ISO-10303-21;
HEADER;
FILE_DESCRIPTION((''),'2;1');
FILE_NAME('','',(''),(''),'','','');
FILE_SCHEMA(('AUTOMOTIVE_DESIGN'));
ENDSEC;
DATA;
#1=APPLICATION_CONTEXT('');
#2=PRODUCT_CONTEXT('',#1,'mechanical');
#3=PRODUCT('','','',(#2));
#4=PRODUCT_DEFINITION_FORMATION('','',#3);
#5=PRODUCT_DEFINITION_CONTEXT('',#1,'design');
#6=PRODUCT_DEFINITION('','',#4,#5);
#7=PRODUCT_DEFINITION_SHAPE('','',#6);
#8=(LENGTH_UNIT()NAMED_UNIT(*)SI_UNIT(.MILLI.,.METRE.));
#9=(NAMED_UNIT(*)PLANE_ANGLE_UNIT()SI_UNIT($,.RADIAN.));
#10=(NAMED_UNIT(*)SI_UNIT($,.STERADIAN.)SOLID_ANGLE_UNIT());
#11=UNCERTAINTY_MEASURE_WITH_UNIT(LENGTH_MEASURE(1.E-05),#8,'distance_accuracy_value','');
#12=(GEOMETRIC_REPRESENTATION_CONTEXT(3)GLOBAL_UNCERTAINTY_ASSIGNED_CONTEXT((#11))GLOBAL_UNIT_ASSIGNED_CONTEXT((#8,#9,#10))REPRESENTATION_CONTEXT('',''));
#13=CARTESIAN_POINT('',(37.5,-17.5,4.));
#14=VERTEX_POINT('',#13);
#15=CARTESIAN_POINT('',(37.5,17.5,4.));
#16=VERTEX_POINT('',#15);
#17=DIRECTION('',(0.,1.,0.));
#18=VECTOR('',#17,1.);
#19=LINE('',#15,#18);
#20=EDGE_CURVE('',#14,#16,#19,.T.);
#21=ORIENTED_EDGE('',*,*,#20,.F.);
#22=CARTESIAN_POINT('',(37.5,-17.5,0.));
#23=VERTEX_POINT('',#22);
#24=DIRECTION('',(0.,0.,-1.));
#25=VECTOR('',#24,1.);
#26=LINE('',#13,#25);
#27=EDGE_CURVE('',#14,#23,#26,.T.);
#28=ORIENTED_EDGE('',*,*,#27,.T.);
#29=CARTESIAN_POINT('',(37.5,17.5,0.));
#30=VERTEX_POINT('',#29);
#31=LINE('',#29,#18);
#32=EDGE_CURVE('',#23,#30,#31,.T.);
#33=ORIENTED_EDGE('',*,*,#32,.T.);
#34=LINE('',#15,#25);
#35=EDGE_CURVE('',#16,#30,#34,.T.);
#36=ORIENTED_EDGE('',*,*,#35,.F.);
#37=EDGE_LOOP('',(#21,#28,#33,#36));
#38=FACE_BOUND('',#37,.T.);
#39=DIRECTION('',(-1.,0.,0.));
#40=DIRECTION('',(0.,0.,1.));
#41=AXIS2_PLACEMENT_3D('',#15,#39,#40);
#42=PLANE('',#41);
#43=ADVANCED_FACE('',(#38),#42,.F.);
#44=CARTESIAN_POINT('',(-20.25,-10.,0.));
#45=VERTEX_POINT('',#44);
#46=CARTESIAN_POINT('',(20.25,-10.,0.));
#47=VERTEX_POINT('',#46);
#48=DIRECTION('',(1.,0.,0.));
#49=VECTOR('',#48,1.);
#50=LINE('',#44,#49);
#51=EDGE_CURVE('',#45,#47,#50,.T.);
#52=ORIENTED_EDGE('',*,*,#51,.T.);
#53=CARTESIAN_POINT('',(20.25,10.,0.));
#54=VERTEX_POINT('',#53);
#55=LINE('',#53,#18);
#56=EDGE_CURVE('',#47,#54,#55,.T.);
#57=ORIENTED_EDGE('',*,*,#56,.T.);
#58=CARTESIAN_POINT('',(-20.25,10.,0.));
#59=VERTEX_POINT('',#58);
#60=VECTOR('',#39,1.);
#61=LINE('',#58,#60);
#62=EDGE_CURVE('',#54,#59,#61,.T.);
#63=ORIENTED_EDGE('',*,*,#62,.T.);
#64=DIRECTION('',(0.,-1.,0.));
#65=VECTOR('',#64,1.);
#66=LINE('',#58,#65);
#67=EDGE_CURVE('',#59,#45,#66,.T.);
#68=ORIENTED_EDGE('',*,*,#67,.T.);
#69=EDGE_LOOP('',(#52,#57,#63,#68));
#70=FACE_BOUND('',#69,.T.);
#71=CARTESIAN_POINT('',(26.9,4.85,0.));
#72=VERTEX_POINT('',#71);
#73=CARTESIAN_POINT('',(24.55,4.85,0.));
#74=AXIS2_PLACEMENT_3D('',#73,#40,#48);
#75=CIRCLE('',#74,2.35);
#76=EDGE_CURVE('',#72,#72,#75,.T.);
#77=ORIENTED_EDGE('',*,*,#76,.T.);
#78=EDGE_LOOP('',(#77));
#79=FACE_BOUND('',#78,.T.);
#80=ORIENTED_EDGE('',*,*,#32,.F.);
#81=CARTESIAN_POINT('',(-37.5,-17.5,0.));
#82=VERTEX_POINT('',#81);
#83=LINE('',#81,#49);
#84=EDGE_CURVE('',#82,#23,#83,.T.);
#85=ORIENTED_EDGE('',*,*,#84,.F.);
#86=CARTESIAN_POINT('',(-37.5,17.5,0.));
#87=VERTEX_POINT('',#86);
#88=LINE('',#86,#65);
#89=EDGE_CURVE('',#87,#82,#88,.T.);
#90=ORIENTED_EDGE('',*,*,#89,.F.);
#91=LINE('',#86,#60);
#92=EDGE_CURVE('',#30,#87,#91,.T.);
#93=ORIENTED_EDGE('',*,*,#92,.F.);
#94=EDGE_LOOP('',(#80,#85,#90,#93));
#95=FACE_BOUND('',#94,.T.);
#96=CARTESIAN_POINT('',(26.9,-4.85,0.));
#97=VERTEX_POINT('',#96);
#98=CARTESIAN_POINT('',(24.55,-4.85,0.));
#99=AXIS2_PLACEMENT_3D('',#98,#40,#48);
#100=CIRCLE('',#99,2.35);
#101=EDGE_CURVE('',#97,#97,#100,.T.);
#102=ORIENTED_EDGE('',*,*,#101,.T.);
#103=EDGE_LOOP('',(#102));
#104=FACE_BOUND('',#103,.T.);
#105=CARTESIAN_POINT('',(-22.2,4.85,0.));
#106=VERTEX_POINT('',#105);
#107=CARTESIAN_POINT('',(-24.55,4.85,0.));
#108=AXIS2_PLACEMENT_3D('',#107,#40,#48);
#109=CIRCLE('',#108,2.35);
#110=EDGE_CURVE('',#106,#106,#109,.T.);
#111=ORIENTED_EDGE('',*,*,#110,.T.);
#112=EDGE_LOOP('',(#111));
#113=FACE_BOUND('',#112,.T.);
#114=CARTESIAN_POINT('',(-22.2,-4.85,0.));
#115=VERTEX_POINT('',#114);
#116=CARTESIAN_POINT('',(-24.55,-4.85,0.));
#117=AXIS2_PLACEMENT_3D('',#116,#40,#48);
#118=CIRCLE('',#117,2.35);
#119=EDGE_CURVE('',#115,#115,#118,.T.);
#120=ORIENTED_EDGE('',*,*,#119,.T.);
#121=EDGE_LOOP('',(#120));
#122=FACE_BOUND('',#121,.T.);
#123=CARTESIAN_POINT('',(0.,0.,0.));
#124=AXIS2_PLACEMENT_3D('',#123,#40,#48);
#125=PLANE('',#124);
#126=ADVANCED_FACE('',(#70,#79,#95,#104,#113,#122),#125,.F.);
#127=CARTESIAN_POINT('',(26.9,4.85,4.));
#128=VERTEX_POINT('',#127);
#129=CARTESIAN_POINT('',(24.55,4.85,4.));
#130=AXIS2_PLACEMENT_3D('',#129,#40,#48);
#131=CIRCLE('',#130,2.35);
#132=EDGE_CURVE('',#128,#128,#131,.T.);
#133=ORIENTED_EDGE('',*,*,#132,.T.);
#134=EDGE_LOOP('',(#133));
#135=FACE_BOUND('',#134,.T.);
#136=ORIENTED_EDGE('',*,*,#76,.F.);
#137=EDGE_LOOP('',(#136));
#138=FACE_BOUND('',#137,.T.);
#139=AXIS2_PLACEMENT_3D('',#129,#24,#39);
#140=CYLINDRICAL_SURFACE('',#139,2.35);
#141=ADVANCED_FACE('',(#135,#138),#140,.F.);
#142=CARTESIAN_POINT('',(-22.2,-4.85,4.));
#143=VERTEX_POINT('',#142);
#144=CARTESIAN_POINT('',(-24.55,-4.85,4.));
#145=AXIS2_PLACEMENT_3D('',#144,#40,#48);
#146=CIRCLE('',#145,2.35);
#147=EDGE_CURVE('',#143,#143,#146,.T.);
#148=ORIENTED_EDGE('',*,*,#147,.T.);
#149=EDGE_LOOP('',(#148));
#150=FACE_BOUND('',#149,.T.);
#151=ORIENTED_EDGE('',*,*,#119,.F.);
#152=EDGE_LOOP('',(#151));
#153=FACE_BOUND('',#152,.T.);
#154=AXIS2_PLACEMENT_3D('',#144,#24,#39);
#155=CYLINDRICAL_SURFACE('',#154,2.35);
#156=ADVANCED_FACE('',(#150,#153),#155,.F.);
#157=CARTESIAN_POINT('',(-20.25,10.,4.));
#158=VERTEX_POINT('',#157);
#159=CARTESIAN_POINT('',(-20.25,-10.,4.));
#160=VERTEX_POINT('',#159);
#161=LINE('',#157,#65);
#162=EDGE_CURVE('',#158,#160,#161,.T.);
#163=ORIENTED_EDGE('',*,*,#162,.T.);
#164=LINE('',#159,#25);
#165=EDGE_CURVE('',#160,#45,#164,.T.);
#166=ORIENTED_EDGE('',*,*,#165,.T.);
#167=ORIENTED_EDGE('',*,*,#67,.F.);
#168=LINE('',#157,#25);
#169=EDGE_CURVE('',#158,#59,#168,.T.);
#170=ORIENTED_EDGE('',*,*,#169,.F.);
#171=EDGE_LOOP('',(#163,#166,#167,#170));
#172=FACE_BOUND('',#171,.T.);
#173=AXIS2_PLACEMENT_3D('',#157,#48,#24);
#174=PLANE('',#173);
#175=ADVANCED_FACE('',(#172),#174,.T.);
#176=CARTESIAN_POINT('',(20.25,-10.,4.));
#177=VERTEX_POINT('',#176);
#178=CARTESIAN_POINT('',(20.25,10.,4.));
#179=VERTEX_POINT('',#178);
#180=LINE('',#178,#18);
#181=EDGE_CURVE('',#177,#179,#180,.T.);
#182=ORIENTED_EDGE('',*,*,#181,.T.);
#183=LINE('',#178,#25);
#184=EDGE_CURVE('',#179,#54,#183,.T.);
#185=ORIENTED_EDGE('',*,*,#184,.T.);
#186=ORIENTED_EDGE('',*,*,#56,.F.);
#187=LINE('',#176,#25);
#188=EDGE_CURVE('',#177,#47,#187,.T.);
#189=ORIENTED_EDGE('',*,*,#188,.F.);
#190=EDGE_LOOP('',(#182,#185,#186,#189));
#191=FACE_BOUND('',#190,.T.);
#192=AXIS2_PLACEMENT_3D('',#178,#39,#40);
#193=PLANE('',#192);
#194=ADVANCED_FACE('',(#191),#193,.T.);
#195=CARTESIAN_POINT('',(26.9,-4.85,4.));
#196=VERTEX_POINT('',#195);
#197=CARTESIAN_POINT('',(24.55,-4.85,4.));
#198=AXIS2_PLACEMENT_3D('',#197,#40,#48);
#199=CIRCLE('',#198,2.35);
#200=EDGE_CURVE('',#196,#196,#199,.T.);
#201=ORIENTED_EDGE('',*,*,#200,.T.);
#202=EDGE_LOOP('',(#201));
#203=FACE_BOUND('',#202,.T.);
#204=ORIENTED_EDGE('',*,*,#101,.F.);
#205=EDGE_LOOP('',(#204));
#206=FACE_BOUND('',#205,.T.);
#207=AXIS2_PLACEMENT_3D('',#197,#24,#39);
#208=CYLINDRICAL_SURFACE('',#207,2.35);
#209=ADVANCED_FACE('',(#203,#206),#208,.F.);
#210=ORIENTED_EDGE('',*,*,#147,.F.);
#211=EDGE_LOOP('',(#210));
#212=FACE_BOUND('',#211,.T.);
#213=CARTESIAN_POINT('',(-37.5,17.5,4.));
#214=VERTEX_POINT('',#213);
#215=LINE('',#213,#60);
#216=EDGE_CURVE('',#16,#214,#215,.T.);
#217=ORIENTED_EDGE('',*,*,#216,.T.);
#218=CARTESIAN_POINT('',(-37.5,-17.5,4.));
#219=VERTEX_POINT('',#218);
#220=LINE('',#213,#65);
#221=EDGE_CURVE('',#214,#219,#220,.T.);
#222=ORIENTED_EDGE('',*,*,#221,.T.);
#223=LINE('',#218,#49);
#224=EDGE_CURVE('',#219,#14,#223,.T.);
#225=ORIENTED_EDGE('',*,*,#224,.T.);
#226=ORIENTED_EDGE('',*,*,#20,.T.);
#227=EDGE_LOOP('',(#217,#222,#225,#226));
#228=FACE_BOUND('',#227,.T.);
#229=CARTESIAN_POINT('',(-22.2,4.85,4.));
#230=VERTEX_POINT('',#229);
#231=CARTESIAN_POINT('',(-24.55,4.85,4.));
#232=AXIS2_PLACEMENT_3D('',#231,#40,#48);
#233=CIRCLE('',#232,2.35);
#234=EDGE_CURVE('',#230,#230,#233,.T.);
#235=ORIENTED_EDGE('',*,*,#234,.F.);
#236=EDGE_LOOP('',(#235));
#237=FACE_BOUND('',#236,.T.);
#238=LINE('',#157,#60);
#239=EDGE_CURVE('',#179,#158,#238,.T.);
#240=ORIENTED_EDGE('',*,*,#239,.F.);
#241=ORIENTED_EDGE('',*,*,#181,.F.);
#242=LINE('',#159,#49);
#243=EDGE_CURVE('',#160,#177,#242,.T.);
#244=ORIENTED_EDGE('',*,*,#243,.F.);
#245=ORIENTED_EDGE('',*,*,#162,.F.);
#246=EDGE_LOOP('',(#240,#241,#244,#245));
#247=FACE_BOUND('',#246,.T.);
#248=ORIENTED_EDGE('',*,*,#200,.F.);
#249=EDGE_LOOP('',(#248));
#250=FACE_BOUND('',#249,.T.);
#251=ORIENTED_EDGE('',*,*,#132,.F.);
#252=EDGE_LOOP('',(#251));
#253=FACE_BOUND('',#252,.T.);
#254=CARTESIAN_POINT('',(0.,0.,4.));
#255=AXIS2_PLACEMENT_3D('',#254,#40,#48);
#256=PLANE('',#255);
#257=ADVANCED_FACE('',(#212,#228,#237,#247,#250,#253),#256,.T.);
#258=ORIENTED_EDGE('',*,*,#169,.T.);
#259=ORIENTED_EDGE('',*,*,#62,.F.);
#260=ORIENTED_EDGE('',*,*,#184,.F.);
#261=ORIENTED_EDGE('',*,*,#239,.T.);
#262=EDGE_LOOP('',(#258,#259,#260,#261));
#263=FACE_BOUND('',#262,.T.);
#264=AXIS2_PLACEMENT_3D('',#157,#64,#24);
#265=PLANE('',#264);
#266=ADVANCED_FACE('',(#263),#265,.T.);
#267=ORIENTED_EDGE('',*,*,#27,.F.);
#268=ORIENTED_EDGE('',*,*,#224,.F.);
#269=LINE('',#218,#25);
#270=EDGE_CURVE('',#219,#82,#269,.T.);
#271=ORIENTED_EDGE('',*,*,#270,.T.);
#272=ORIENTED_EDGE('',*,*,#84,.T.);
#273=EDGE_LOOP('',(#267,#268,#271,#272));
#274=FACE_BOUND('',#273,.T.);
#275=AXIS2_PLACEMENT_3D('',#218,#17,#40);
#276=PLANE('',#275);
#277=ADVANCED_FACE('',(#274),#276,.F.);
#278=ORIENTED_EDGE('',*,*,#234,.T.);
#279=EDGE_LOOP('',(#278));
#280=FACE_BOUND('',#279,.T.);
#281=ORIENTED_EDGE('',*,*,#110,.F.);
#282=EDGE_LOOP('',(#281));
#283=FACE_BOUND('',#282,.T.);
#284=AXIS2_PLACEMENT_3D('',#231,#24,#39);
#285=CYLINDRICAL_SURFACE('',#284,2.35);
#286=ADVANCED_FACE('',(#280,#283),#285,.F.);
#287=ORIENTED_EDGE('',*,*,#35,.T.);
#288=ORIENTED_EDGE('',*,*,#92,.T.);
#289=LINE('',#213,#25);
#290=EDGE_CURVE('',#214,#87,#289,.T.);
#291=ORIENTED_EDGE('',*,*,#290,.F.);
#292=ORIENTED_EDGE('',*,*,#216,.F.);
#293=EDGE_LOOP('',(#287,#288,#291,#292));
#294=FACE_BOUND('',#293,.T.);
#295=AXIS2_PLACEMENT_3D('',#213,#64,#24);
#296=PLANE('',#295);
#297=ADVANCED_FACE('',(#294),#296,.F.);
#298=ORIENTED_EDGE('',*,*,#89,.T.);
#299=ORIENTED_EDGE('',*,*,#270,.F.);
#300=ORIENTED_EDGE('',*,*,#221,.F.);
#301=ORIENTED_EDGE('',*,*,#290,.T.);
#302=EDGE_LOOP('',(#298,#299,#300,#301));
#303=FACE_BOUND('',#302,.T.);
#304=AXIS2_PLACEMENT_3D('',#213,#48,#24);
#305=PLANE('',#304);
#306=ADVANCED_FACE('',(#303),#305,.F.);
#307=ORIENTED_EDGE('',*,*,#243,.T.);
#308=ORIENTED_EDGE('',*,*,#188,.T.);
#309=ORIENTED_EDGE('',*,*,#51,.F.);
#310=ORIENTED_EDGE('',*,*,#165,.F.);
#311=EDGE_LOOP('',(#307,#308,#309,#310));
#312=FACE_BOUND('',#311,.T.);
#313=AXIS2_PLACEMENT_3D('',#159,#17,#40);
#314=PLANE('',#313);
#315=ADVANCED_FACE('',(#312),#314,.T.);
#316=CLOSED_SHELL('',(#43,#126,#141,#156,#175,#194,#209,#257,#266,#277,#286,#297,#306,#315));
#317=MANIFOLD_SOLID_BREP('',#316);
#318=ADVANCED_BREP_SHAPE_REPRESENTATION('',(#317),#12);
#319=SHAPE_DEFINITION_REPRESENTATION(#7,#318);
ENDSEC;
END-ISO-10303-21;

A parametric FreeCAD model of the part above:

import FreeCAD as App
import Part
import Sketcher
from FreeCAD import Vector


def add_polygon(sketch, points):
    """Adds a closed chain of lines whose ends are joined by coincident constraints."""
    first, n = sketch.GeometryCount, len(points)
    for a, b in zip(points, points[1:] + points[:1]):
        sketch.addGeometry(Part.LineSegment(App.Vector(*a, 0), App.Vector(*b, 0)), False)
    for i in range(n):
        sketch.addConstraint(Sketcher.Constraint("Coincident", first + i, 2, first + (i + 1) % n, 1))

doc = App.newDocument("Part")
body = doc.addObject("PartDesign::Body", "Body")

sketch1 = body.newObject("Sketcher::SketchObject", "Sketch")
sketch1.AttachmentSupport = (doc.getObject("XY_Plane"), [""])
sketch1.MapMode = "FlatFace"
add_polygon(sketch1, [(-37.5, 17.5), (-37.5, -17.5), (37.5, -17.5), (37.5, 17.5)])
sketch1.addGeometry(Part.Circle(Vector(-24.6, -4.8, 0), Vector(0, 0, 1), 2.4), False)
sketch1.addGeometry(Part.Circle(Vector(24.6, -4.8, 0), Vector(0, 0, 1), 2.4), False)
sketch1.addGeometry(Part.Circle(Vector(-24.6, 4.8, 0), Vector(0, 0, 1), 2.4), False)
add_polygon(sketch1, [(20.2, -10), (-20.2, -10), (-20.2, 10), (20.2, 10)])
sketch1.addGeometry(Part.Circle(Vector(24.6, 4.8, 0), Vector(0, 0, 1), 2.4), False)
sketch1.addConstraint(Sketcher.Constraint("Vertical", 0))
sketch1.addConstraint(Sketcher.Constraint("Horizontal", 1))
sketch1.addConstraint(Sketcher.Constraint("Vertical", 2))
sketch1.addConstraint(Sketcher.Constraint("Horizontal", 3))
sketch1.addConstraint(Sketcher.Constraint("Horizontal", 7))
sketch1.addConstraint(Sketcher.Constraint("Vertical", 8))
sketch1.addConstraint(Sketcher.Constraint("Horizontal", 9))
sketch1.addConstraint(Sketcher.Constraint("Vertical", 10))
sketch1.addConstraint(Sketcher.Constraint("Equal", 4, 5))
sketch1.addConstraint(Sketcher.Constraint("Equal", 5, 6))
sketch1.addConstraint(Sketcher.Constraint("Equal", 6, 11))
sketch1.addConstraint(Sketcher.Constraint("Symmetric", 5, 3, 6, 3, -1, 1))
sketch1.addConstraint(Sketcher.Constraint("Symmetric", 4, 3, 11, 3, -1, 1))
sketch1.addConstraint(Sketcher.Constraint("Symmetric", 0, 2, 2, 2, -1, 1))
sketch1.addConstraint(Sketcher.Constraint("Symmetric", 7, 2, 9, 2, -1, 1))
sketch1.addConstraint(Sketcher.Constraint("Symmetric", 4, 3, 5, 3, -2))
sketch1.addConstraint(Sketcher.Constraint("Diameter", 4, 4.7))
sketch1.addConstraint(Sketcher.Constraint("DistanceX", 1, 1, 1, 2, 75.0))
sketch1.addConstraint(Sketcher.Constraint("DistanceY", 0, 2, 0, 1, 35.0))
sketch1.addConstraint(Sketcher.Constraint("DistanceY", 8, 1, 8, 2, 20.0))
sketch1.addConstraint(Sketcher.Constraint("DistanceX", 7, 2, 7, 1, 40.5))
sketch1.addConstraint(Sketcher.Constraint("DistanceX", 4, 3, 5, 3, 49.1))
sketch1.addConstraint(Sketcher.Constraint("DistanceY", 4, 3, 6, 3, 9.7))
pad1 = body.newObject("PartDesign::Pad", "Pad")
pad1.Profile = sketch1
pad1.Length = 4

doc.recompute()
